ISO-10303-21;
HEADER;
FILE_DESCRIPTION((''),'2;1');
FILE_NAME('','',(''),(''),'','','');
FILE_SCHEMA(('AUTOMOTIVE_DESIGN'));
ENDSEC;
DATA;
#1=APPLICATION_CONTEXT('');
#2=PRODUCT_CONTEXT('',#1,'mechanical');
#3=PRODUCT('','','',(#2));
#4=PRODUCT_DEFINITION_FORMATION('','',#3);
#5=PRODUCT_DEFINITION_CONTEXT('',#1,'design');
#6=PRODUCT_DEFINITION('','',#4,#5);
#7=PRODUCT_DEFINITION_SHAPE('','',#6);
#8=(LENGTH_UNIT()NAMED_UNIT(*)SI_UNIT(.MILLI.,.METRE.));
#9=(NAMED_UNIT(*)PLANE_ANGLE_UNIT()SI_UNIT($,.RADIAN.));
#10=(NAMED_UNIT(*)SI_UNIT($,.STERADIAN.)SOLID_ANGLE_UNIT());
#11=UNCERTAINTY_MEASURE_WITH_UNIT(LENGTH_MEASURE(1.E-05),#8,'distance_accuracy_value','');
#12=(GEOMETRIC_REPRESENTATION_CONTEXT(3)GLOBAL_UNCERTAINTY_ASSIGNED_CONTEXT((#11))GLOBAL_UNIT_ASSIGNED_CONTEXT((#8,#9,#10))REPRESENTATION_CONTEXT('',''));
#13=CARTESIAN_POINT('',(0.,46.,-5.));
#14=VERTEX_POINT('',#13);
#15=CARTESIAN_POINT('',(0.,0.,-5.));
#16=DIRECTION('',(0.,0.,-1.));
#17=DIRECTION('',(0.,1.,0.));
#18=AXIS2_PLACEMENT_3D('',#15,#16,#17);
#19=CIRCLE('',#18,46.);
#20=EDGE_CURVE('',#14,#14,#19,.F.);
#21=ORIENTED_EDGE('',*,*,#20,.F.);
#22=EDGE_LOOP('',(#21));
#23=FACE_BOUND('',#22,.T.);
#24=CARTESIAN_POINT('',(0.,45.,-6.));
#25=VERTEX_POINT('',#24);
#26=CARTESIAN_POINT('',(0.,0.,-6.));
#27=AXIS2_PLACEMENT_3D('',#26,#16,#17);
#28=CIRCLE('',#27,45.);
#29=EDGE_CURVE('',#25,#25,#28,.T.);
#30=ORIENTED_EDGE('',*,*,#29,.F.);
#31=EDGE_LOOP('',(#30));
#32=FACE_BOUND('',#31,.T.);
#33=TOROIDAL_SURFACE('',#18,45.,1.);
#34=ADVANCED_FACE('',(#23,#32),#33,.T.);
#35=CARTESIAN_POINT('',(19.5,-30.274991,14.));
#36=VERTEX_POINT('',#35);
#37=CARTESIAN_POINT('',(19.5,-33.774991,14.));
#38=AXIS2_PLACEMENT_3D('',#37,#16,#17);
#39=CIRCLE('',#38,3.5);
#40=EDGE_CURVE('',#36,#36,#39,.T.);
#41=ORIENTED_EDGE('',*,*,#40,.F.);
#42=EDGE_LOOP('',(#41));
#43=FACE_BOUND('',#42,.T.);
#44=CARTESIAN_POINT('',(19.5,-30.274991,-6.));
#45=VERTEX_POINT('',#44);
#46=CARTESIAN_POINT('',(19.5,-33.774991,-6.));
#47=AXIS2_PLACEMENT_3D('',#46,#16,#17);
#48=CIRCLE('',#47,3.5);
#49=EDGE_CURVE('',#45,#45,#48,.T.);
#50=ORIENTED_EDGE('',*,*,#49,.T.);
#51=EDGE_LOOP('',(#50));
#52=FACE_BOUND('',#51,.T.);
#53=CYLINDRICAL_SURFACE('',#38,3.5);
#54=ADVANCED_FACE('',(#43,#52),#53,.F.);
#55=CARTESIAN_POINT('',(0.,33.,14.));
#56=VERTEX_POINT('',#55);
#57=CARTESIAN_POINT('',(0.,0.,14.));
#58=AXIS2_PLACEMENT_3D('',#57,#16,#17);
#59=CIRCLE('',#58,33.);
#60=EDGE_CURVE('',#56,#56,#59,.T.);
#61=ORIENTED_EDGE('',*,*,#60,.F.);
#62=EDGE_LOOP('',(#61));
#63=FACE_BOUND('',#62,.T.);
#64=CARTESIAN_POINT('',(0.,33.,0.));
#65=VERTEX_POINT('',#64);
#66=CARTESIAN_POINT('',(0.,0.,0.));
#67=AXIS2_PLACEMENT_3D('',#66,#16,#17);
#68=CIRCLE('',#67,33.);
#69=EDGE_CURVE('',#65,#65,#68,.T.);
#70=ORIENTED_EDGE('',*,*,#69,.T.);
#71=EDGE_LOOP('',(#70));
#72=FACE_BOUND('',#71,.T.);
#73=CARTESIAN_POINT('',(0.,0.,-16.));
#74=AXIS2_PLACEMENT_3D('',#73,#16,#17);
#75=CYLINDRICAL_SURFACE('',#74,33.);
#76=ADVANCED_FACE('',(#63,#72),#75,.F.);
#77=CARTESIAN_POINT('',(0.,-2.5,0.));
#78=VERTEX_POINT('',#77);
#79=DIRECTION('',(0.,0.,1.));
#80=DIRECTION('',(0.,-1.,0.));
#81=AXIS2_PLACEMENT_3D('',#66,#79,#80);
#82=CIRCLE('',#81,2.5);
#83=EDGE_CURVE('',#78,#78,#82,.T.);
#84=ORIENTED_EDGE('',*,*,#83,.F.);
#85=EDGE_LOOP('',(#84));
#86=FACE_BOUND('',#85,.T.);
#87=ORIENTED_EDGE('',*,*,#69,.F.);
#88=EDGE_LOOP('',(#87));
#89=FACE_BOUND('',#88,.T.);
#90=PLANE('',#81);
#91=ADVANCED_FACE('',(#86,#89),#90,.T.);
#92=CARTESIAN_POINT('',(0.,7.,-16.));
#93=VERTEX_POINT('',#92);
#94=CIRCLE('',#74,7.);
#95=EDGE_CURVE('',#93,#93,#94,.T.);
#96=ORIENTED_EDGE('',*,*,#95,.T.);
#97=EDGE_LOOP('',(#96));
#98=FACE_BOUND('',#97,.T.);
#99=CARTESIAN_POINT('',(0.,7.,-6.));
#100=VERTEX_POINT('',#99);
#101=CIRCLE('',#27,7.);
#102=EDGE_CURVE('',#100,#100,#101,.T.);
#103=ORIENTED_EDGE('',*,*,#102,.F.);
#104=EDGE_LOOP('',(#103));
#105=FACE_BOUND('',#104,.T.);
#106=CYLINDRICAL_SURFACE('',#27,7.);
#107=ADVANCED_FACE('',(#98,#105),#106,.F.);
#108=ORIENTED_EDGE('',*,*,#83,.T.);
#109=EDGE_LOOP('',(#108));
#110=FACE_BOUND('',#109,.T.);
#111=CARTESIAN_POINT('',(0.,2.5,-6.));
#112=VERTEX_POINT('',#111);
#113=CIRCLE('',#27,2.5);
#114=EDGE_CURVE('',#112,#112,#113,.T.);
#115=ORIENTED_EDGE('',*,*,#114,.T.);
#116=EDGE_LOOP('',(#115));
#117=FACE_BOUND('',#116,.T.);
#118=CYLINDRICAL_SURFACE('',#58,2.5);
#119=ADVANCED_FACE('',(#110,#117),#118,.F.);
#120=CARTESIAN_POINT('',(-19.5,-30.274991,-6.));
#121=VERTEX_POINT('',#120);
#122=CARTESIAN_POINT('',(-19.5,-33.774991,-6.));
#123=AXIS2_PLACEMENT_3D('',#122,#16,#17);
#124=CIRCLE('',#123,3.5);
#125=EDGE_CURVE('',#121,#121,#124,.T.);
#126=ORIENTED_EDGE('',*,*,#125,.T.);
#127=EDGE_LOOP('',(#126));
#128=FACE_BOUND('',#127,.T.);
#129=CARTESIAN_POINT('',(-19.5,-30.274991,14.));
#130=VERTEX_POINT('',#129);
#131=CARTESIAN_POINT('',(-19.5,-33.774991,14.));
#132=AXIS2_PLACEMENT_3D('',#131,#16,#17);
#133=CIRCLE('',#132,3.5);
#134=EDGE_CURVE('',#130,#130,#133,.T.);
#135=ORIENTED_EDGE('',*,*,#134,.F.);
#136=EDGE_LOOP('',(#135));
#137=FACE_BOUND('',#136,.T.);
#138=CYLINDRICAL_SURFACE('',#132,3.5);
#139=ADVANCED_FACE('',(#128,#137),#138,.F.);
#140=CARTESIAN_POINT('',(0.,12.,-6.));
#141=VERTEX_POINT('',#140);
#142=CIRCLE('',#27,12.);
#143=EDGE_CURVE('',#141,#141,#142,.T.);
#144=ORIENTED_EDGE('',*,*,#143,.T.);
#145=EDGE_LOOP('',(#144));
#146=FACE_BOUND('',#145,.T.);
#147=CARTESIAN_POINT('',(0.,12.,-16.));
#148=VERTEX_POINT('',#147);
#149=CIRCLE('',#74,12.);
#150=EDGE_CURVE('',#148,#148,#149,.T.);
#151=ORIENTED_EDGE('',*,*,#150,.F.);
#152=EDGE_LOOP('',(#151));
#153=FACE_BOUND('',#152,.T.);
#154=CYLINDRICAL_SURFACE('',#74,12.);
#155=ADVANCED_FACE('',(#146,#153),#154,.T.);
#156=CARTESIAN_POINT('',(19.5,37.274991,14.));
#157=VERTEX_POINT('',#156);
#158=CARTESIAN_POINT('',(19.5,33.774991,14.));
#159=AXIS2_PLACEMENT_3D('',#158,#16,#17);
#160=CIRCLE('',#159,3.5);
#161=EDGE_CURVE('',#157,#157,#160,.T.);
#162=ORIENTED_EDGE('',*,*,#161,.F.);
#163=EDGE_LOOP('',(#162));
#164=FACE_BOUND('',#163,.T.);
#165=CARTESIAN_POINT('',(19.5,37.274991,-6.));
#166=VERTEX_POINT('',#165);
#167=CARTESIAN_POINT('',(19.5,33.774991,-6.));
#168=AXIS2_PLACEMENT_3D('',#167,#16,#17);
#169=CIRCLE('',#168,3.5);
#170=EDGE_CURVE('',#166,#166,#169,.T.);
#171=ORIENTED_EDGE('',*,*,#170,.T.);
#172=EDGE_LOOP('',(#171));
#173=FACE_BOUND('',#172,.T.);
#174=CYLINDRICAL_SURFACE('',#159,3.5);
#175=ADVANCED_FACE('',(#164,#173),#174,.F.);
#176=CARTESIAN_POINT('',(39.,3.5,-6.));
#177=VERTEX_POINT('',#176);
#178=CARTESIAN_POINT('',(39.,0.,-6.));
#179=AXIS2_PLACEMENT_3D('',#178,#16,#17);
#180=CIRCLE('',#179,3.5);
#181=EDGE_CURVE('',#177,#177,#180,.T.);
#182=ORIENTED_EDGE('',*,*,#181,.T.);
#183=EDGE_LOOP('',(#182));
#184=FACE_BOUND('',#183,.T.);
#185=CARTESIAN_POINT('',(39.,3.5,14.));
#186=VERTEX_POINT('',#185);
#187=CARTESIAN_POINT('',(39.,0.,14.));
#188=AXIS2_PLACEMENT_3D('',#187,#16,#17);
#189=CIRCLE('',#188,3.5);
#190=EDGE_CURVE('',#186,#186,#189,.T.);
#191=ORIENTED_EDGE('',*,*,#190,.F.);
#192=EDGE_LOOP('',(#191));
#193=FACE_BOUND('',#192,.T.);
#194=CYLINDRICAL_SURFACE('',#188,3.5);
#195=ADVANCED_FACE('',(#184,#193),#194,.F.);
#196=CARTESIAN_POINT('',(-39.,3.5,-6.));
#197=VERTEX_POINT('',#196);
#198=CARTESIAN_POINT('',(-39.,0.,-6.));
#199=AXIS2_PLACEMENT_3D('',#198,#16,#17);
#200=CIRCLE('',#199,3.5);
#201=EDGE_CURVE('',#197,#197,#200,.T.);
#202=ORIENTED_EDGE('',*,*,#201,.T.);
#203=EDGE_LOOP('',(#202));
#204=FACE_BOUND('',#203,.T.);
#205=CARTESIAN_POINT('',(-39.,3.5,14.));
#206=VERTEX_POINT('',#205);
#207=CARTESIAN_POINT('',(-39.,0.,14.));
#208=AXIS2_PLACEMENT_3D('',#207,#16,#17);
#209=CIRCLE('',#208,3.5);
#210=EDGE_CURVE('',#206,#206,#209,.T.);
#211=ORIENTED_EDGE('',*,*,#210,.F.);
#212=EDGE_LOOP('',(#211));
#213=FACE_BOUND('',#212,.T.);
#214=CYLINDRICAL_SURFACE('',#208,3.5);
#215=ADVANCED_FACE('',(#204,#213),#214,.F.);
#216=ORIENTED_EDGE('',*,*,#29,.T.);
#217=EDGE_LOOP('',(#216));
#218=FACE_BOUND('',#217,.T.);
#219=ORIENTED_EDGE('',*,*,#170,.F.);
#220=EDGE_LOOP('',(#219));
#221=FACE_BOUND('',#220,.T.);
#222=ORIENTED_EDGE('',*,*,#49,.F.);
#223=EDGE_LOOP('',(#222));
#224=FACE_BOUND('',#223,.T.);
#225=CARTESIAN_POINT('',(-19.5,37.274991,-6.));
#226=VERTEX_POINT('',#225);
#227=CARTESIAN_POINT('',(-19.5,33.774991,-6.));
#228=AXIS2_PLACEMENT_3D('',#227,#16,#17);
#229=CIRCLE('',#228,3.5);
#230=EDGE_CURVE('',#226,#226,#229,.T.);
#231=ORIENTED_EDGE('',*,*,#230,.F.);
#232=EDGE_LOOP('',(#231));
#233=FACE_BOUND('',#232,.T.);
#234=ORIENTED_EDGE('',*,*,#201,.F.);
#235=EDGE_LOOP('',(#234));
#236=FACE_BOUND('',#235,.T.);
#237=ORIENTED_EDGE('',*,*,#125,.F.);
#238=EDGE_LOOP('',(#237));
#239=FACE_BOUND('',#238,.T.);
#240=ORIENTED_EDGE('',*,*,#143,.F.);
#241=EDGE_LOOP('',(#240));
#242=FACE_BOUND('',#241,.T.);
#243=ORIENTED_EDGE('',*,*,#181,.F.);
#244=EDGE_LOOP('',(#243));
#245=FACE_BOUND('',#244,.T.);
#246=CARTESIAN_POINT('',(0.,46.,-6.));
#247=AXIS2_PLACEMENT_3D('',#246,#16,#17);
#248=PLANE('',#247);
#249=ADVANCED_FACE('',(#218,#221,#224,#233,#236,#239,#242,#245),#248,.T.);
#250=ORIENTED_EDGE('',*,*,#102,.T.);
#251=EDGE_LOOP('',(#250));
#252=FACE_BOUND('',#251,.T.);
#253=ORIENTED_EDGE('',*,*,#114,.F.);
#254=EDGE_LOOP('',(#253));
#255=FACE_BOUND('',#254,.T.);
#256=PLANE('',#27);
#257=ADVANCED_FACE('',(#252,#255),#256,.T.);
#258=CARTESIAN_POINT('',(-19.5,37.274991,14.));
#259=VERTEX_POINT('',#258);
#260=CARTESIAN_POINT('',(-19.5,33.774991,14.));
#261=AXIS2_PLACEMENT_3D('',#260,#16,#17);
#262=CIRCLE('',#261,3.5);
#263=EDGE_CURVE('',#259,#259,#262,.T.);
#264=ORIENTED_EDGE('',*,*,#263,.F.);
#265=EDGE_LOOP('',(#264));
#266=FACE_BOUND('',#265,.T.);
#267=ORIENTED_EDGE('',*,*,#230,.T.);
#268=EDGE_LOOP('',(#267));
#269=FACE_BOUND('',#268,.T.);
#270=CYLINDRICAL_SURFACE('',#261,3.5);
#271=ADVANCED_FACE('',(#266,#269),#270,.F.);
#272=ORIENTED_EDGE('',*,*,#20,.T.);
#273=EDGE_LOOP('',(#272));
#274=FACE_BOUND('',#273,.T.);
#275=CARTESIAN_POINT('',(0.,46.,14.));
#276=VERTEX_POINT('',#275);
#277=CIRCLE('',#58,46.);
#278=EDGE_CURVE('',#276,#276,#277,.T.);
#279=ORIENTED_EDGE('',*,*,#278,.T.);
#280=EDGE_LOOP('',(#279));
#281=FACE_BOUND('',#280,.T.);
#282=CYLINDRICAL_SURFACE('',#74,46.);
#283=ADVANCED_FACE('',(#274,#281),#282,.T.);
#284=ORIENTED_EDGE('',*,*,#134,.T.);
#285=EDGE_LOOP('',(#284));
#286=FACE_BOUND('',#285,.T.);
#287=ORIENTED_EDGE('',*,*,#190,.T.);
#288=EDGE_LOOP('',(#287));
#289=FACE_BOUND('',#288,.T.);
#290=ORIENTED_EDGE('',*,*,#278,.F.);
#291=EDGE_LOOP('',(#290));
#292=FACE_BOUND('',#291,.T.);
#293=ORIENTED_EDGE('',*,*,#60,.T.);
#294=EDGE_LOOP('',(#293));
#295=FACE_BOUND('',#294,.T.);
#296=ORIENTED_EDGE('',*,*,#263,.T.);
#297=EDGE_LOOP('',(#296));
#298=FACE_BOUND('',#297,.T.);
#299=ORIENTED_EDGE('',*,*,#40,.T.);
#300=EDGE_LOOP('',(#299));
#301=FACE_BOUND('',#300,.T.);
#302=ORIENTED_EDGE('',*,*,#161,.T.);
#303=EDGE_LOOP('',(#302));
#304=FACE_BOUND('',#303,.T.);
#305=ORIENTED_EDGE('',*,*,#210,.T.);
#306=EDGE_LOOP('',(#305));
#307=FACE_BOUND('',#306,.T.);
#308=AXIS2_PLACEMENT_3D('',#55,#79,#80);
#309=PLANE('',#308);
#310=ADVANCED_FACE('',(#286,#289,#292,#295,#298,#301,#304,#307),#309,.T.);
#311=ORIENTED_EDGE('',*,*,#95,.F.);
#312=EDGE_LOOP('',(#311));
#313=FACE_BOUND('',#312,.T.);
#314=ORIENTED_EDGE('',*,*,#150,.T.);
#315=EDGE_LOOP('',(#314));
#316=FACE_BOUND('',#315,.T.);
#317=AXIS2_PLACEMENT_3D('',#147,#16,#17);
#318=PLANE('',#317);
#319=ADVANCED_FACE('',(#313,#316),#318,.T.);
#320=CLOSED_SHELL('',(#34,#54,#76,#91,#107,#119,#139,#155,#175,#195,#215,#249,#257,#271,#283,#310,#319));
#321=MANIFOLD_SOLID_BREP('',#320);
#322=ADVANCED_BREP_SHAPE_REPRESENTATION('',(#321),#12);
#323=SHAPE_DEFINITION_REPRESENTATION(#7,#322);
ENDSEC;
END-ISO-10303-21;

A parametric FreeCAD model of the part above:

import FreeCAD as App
import Part
import Sketcher
Q = App.Units.Quantity


def edges_at(feature, points):
    """Names of the edges that pass closest to the given points."""
    edges = feature.Shape.Edges
    near = lambda p: min(range(len(edges)), key=lambda i: edges[i].distToShape(Part.Vertex(*p))[0])
    return sorted({f"Edge{near(p) + 1}" for p in points})


def add_polygon(sketch, points):
    """Adds a closed chain of lines whose ends are joined by coincident constraints."""
    first, n = sketch.GeometryCount, len(points)
    for a, b in zip(points, points[1:] + points[:1]):
        sketch.addGeometry(Part.LineSegment(App.Vector(*a, 0), App.Vector(*b, 0)), False)
    for i in range(n):
        sketch.addConstraint(Sketcher.Constraint("Coincident", first + i, 2, first + (i + 1) % n, 1))

doc = App.newDocument("Part")
body = doc.addObject("PartDesign::Body", "Body")

sketch1 = body.newObject("Sketcher::SketchObject", "Sketch")
sketch1.AttachmentSupport = (doc.getObject("YZ_Plane"), [""])
sketch1.MapMode = "FlatFace"
add_polygon(sketch1, [(33, 14), (33, 0), (0, 0), (0, -16), (12, -16), (12, -6), (46, -6), (46, 14)])
sketch1.addConstraint([
    Sketcher.Constraint("Vertical", 0),
    Sketcher.Constraint("Horizontal", 1),
    Sketcher.Constraint("Vertical", 2),
    Sketcher.Constraint("Horizontal", 3),
    Sketcher.Constraint("Vertical", 4),
    Sketcher.Constraint("Horizontal", 5),
    Sketcher.Constraint("Vertical", 6),
    Sketcher.Constraint("Horizontal", 7),
    Sketcher.Constraint("Coincident", 1, 2, -1, 1),
    Sketcher.Constraint("DistanceX", 1, 2, 1, 1, Q("33 mm")),
    Sketcher.Constraint("DistanceX", 3, 1, 3, 2, Q("12 mm")),
    Sketcher.Constraint("DistanceX", 5, 1, 5, 2, Q("34 mm")),
    Sketcher.Constraint("DistanceY", 0, 2, 0, 1, Q("14 mm")),
    Sketcher.Constraint("DistanceY", 2, 2, 2, 1, Q("16 mm")),
    Sketcher.Constraint("DistanceY", 4, 1, 4, 2, Q("10 mm")),
])
revolution = body.newObject("PartDesign::Revolution", "Revolution")
revolution.Profile = sketch1
revolution.ReferenceAxis = (sketch1, ["V_Axis"])
revolution.Angle = 360

sketch2 = body.newObject("Sketcher::SketchObject", "Sketch001")
sketch2.AttachmentSupport = (doc.getObject("XY_Plane"), [""])
sketch2.MapMode = "FlatFace"
sketch2.AttachmentOffset = App.Placement(App.Vector(0, 0, -6), App.Rotation())
sketch2.addGeometry([
    Part.Circle(App.Vector(-19.5, -33.8, 0), App.Vector(0, 0, 1), 3.5),
    Part.Circle(App.Vector(19.5, -33.8, 0), App.Vector(0, 0, 1), 3.5),
    Part.Circle(App.Vector(39, 0, 0), App.Vector(0, 0, 1), 3.5),
    Part.Circle(App.Vector(19.5, 33.8, 0), App.Vector(0, 0, 1), 3.5),
    Part.Circle(App.Vector(-19.5, 33.8, 0), App.Vector(0, 0, 1), 3.5),
    Part.Circle(App.Vector(-39, 0, 0), App.Vector(0, 0, 1), 3.5),
], False)
sketch2.addConstraint([
    Sketcher.Constraint("Equal", 0, 1),
    Sketcher.Constraint("Equal", 1, 2),
    Sketcher.Constraint("Equal", 2, 3),
    Sketcher.Constraint("Equal", 3, 4),
    Sketcher.Constraint("Equal", 4, 5),
    Sketcher.Constraint("Symmetric", 0, 3, 3, 3, -1, 1),
    Sketcher.Constraint("Symmetric", 1, 3, 4, 3, -1, 1),
    Sketcher.Constraint("Symmetric", 2, 3, 5, 3, -1, 1),
    Sketcher.Constraint("Symmetric", 0, 3, 1, 3, -2),
    Sketcher.Constraint("PointOnObject", 2, 3, -1),
    Sketcher.Constraint("Diameter", 0, Q("7 mm")),
    Sketcher.Constraint("DistanceX", -1, 1, 2, 3, Q("39 mm")),
    Sketcher.Constraint("DistanceX", 0, 3, 1, 3, Q("39 mm")),
    Sketcher.Constraint("DistanceY", 0, 3, -1, 1, Q("33.774991 mm")),
])
pocket1 = body.newObject("PartDesign::Pocket", "Pocket")
pocket1.Profile = sketch2
pocket1.Type = "ThroughAll"
pocket1.Reversed = True

sketch3 = body.newObject("Sketcher::SketchObject", "Sketch002")
sketch3.AttachmentSupport = (doc.getObject("XY_Plane"), [""])
sketch3.MapMode = "FlatFace"
sketch3.AttachmentOffset = App.Placement(App.Vector(0, 0, -16), App.Rotation())
sketch3.addGeometry(Part.Circle(App.Vector(0, 0, 0), App.Vector(0, 0, 1), 7), False)
sketch3.addConstraint([
    Sketcher.Constraint("Coincident", 0, 3, -1, 1),
    Sketcher.Constraint("Diameter", 0, Q("14 mm")),
])
pocket2 = body.newObject("PartDesign::Pocket", "Pocket001")
pocket2.Profile = sketch3
pocket2.Length = 10
pocket2.Reversed = True

sketch4 = body.newObject("Sketcher::SketchObject", "Sketch003")
sketch4.AttachmentSupport = (doc.getObject("XY_Plane"), [""])
sketch4.MapMode = "FlatFace"
sketch4.AttachmentOffset = App.Placement(App.Vector(0, 0, -16), App.Rotation())
sketch4.addGeometry(Part.Circle(App.Vector(0, 0, 0), App.Vector(0, 0, 1), 2.5), False)
sketch4.addConstraint([
    Sketcher.Constraint("Coincident", 0, 3, -1, 1),
    Sketcher.Constraint("Diameter", 0, Q("5 mm")),
])
pocket3 = body.newObject("PartDesign::Pocket", "Pocket002")
pocket3.Profile = sketch4
pocket3.Type = "ThroughAll"
pocket3.Reversed = True
doc.recompute()

fillet = body.newObject("PartDesign::Fillet", "Fillet")
fillet.Base = (pocket3, edges_at(pocket3, [(0, -46, -6)]))
fillet.Radius = 1

doc.recompute()
